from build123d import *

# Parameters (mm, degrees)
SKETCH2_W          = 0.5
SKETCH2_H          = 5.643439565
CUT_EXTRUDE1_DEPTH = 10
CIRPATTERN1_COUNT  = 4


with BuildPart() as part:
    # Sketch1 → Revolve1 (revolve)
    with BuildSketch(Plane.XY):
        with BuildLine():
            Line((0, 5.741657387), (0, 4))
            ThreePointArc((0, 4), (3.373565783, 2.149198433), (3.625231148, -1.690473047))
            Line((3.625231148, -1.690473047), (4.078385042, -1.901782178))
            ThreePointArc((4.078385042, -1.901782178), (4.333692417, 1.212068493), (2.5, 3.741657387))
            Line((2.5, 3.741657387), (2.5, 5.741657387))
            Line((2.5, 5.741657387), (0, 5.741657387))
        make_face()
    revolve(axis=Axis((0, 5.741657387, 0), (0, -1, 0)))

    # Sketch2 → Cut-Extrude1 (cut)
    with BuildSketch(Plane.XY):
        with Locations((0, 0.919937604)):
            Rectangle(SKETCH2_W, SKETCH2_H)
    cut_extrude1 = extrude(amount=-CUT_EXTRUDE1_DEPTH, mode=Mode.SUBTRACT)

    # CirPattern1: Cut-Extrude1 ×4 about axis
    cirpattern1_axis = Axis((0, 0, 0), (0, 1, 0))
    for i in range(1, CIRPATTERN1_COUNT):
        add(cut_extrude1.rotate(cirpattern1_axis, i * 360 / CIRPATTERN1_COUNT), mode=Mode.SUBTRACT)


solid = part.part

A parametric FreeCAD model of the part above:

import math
import FreeCAD as App
import Part
import Sketcher
from FreeCAD import Vector
Q = App.Units.Quantity


def add_polygon(sketch, points):
    """Adds a closed chain of lines whose ends are joined by coincident constraints."""
    first, n = sketch.GeometryCount, len(points)
    for a, b in zip(points, points[1:] + points[:1]):
        sketch.addGeometry(Part.LineSegment(App.Vector(*a, 0), App.Vector(*b, 0)), False)
    for i in range(n):
        sketch.addConstraint(Sketcher.Constraint("Coincident", first + i, 2, first + (i + 1) % n, 1))

doc = App.newDocument("Part")
body = doc.addObject("PartDesign::Body", "Body")

# Sketch on XY plane
sketch1 = body.newObject("Sketcher::SketchObject", "Sketch")
sketch1.AttachmentSupport = (doc.getObject("XY_Plane"), [""])
sketch1.MapMode = "FlatFace"
sketch1.addGeometry([
    Part.LineSegment(Vector(0, 5.7, 0), Vector(0, 4, 0)),  # 0
    Part.ArcOfCircle(Part.Circle(Vector(0, 0, 0), Vector(0, 0, 1), 4), math.radians(-25), math.radians(90)),  # 1
    Part.LineSegment(Vector(3.6, -1.7, 0), Vector(4.1, -1.9, 0)),  # 2
    Part.ArcOfCircle(Part.Circle(Vector(0, 0, 0), Vector(0, 0, 1), 4.5), math.radians(-25), math.radians(56)),  # 3
    Part.LineSegment(Vector(2.5, 3.7, 0), Vector(2.5, 5.7, 0)),  # 4
    Part.LineSegment(Vector(2.5, 5.7, 0), Vector(0, 5.7, 0)),  # 5
], False)
sketch1.addConstraint([
    Sketcher.Constraint("Coincident", 0, 2, 1, 2),
    Sketcher.Constraint("Coincident", 1, 1, 2, 1),
    Sketcher.Constraint("Coincident", 2, 2, 3, 1),
    Sketcher.Constraint("Coincident", 3, 2, 4, 1),
    Sketcher.Constraint("Coincident", 4, 2, 5, 1),
    Sketcher.Constraint("Coincident", 5, 2, 0, 1),
    Sketcher.Constraint("Vertical", 0),
    Sketcher.Constraint("Vertical", 4),
    Sketcher.Constraint("Horizontal", 5),
    Sketcher.Constraint("Coincident", 1, 3, -1, 1),
    Sketcher.Constraint("Coincident", 3, 3, -1, 1),
    Sketcher.Constraint("PointOnObject", 0, 2, -2),
    Sketcher.Constraint("Radius", 1, 4.0),
    Sketcher.Constraint("Radius", 3, 4.5),
    Sketcher.Constraint("DistanceY", 4, 1, 4, 2, 2.0),
    Sketcher.Constraint("Angle", 2, Q("-25 deg")),
    Sketcher.Constraint("DistanceX", 5, 2, 5, 1, 2.5),
    Sketcher.Constraint("DistanceX", -1, 1, 1, 1, 3.625231),
])
revolution = body.newObject("PartDesign::Revolution", "Revolution")
revolution.Profile = sketch1
revolution.ReferenceAxis = (sketch1, ["V_Axis"])
revolution.Angle = 360

# Sketch on XY plane
sketch2 = body.newObject("Sketcher::SketchObject", "Sketch001")
sketch2.AttachmentSupport = (doc.getObject("XY_Plane"), [""])
sketch2.MapMode = "FlatFace"
add_polygon(sketch2, [(-0.2, 3.7), (-0.2, -1.9), (0.2, -1.9), (0.2, 3.7)])  # lines 0-3
sketch2.addConstraint([
    Sketcher.Constraint("Vertical", 0),
    Sketcher.Constraint("Horizontal", 1),
    Sketcher.Constraint("Vertical", 2),
    Sketcher.Constraint("Horizontal", 3),
    Sketcher.Constraint("DistanceX", 1, 1, 1, 2, 0.5),
    Sketcher.Constraint("DistanceX", 0, 2, -1, 1, 0.25),
    Sketcher.Constraint("DistanceY", 0, 2, 0, 1, 5.64344),
    Sketcher.Constraint("DistanceY", 0, 2, -1, 1, 1.901782),
])
pocket1 = body.newObject("PartDesign::Pocket", "Pocket")
pocket1.Profile = sketch2
pocket1.Length = 10
doc.recompute()

polarpattern = body.newObject("PartDesign::PolarPattern", "PolarPattern")
polarpattern.Originals = [pocket1]
polarpattern.Axis = (doc.getObject("Y_Axis"), [""])
polarpattern.Angle = 360
polarpattern.Occurrences = 4
body.Tip = polarpattern

doc.recompute()
